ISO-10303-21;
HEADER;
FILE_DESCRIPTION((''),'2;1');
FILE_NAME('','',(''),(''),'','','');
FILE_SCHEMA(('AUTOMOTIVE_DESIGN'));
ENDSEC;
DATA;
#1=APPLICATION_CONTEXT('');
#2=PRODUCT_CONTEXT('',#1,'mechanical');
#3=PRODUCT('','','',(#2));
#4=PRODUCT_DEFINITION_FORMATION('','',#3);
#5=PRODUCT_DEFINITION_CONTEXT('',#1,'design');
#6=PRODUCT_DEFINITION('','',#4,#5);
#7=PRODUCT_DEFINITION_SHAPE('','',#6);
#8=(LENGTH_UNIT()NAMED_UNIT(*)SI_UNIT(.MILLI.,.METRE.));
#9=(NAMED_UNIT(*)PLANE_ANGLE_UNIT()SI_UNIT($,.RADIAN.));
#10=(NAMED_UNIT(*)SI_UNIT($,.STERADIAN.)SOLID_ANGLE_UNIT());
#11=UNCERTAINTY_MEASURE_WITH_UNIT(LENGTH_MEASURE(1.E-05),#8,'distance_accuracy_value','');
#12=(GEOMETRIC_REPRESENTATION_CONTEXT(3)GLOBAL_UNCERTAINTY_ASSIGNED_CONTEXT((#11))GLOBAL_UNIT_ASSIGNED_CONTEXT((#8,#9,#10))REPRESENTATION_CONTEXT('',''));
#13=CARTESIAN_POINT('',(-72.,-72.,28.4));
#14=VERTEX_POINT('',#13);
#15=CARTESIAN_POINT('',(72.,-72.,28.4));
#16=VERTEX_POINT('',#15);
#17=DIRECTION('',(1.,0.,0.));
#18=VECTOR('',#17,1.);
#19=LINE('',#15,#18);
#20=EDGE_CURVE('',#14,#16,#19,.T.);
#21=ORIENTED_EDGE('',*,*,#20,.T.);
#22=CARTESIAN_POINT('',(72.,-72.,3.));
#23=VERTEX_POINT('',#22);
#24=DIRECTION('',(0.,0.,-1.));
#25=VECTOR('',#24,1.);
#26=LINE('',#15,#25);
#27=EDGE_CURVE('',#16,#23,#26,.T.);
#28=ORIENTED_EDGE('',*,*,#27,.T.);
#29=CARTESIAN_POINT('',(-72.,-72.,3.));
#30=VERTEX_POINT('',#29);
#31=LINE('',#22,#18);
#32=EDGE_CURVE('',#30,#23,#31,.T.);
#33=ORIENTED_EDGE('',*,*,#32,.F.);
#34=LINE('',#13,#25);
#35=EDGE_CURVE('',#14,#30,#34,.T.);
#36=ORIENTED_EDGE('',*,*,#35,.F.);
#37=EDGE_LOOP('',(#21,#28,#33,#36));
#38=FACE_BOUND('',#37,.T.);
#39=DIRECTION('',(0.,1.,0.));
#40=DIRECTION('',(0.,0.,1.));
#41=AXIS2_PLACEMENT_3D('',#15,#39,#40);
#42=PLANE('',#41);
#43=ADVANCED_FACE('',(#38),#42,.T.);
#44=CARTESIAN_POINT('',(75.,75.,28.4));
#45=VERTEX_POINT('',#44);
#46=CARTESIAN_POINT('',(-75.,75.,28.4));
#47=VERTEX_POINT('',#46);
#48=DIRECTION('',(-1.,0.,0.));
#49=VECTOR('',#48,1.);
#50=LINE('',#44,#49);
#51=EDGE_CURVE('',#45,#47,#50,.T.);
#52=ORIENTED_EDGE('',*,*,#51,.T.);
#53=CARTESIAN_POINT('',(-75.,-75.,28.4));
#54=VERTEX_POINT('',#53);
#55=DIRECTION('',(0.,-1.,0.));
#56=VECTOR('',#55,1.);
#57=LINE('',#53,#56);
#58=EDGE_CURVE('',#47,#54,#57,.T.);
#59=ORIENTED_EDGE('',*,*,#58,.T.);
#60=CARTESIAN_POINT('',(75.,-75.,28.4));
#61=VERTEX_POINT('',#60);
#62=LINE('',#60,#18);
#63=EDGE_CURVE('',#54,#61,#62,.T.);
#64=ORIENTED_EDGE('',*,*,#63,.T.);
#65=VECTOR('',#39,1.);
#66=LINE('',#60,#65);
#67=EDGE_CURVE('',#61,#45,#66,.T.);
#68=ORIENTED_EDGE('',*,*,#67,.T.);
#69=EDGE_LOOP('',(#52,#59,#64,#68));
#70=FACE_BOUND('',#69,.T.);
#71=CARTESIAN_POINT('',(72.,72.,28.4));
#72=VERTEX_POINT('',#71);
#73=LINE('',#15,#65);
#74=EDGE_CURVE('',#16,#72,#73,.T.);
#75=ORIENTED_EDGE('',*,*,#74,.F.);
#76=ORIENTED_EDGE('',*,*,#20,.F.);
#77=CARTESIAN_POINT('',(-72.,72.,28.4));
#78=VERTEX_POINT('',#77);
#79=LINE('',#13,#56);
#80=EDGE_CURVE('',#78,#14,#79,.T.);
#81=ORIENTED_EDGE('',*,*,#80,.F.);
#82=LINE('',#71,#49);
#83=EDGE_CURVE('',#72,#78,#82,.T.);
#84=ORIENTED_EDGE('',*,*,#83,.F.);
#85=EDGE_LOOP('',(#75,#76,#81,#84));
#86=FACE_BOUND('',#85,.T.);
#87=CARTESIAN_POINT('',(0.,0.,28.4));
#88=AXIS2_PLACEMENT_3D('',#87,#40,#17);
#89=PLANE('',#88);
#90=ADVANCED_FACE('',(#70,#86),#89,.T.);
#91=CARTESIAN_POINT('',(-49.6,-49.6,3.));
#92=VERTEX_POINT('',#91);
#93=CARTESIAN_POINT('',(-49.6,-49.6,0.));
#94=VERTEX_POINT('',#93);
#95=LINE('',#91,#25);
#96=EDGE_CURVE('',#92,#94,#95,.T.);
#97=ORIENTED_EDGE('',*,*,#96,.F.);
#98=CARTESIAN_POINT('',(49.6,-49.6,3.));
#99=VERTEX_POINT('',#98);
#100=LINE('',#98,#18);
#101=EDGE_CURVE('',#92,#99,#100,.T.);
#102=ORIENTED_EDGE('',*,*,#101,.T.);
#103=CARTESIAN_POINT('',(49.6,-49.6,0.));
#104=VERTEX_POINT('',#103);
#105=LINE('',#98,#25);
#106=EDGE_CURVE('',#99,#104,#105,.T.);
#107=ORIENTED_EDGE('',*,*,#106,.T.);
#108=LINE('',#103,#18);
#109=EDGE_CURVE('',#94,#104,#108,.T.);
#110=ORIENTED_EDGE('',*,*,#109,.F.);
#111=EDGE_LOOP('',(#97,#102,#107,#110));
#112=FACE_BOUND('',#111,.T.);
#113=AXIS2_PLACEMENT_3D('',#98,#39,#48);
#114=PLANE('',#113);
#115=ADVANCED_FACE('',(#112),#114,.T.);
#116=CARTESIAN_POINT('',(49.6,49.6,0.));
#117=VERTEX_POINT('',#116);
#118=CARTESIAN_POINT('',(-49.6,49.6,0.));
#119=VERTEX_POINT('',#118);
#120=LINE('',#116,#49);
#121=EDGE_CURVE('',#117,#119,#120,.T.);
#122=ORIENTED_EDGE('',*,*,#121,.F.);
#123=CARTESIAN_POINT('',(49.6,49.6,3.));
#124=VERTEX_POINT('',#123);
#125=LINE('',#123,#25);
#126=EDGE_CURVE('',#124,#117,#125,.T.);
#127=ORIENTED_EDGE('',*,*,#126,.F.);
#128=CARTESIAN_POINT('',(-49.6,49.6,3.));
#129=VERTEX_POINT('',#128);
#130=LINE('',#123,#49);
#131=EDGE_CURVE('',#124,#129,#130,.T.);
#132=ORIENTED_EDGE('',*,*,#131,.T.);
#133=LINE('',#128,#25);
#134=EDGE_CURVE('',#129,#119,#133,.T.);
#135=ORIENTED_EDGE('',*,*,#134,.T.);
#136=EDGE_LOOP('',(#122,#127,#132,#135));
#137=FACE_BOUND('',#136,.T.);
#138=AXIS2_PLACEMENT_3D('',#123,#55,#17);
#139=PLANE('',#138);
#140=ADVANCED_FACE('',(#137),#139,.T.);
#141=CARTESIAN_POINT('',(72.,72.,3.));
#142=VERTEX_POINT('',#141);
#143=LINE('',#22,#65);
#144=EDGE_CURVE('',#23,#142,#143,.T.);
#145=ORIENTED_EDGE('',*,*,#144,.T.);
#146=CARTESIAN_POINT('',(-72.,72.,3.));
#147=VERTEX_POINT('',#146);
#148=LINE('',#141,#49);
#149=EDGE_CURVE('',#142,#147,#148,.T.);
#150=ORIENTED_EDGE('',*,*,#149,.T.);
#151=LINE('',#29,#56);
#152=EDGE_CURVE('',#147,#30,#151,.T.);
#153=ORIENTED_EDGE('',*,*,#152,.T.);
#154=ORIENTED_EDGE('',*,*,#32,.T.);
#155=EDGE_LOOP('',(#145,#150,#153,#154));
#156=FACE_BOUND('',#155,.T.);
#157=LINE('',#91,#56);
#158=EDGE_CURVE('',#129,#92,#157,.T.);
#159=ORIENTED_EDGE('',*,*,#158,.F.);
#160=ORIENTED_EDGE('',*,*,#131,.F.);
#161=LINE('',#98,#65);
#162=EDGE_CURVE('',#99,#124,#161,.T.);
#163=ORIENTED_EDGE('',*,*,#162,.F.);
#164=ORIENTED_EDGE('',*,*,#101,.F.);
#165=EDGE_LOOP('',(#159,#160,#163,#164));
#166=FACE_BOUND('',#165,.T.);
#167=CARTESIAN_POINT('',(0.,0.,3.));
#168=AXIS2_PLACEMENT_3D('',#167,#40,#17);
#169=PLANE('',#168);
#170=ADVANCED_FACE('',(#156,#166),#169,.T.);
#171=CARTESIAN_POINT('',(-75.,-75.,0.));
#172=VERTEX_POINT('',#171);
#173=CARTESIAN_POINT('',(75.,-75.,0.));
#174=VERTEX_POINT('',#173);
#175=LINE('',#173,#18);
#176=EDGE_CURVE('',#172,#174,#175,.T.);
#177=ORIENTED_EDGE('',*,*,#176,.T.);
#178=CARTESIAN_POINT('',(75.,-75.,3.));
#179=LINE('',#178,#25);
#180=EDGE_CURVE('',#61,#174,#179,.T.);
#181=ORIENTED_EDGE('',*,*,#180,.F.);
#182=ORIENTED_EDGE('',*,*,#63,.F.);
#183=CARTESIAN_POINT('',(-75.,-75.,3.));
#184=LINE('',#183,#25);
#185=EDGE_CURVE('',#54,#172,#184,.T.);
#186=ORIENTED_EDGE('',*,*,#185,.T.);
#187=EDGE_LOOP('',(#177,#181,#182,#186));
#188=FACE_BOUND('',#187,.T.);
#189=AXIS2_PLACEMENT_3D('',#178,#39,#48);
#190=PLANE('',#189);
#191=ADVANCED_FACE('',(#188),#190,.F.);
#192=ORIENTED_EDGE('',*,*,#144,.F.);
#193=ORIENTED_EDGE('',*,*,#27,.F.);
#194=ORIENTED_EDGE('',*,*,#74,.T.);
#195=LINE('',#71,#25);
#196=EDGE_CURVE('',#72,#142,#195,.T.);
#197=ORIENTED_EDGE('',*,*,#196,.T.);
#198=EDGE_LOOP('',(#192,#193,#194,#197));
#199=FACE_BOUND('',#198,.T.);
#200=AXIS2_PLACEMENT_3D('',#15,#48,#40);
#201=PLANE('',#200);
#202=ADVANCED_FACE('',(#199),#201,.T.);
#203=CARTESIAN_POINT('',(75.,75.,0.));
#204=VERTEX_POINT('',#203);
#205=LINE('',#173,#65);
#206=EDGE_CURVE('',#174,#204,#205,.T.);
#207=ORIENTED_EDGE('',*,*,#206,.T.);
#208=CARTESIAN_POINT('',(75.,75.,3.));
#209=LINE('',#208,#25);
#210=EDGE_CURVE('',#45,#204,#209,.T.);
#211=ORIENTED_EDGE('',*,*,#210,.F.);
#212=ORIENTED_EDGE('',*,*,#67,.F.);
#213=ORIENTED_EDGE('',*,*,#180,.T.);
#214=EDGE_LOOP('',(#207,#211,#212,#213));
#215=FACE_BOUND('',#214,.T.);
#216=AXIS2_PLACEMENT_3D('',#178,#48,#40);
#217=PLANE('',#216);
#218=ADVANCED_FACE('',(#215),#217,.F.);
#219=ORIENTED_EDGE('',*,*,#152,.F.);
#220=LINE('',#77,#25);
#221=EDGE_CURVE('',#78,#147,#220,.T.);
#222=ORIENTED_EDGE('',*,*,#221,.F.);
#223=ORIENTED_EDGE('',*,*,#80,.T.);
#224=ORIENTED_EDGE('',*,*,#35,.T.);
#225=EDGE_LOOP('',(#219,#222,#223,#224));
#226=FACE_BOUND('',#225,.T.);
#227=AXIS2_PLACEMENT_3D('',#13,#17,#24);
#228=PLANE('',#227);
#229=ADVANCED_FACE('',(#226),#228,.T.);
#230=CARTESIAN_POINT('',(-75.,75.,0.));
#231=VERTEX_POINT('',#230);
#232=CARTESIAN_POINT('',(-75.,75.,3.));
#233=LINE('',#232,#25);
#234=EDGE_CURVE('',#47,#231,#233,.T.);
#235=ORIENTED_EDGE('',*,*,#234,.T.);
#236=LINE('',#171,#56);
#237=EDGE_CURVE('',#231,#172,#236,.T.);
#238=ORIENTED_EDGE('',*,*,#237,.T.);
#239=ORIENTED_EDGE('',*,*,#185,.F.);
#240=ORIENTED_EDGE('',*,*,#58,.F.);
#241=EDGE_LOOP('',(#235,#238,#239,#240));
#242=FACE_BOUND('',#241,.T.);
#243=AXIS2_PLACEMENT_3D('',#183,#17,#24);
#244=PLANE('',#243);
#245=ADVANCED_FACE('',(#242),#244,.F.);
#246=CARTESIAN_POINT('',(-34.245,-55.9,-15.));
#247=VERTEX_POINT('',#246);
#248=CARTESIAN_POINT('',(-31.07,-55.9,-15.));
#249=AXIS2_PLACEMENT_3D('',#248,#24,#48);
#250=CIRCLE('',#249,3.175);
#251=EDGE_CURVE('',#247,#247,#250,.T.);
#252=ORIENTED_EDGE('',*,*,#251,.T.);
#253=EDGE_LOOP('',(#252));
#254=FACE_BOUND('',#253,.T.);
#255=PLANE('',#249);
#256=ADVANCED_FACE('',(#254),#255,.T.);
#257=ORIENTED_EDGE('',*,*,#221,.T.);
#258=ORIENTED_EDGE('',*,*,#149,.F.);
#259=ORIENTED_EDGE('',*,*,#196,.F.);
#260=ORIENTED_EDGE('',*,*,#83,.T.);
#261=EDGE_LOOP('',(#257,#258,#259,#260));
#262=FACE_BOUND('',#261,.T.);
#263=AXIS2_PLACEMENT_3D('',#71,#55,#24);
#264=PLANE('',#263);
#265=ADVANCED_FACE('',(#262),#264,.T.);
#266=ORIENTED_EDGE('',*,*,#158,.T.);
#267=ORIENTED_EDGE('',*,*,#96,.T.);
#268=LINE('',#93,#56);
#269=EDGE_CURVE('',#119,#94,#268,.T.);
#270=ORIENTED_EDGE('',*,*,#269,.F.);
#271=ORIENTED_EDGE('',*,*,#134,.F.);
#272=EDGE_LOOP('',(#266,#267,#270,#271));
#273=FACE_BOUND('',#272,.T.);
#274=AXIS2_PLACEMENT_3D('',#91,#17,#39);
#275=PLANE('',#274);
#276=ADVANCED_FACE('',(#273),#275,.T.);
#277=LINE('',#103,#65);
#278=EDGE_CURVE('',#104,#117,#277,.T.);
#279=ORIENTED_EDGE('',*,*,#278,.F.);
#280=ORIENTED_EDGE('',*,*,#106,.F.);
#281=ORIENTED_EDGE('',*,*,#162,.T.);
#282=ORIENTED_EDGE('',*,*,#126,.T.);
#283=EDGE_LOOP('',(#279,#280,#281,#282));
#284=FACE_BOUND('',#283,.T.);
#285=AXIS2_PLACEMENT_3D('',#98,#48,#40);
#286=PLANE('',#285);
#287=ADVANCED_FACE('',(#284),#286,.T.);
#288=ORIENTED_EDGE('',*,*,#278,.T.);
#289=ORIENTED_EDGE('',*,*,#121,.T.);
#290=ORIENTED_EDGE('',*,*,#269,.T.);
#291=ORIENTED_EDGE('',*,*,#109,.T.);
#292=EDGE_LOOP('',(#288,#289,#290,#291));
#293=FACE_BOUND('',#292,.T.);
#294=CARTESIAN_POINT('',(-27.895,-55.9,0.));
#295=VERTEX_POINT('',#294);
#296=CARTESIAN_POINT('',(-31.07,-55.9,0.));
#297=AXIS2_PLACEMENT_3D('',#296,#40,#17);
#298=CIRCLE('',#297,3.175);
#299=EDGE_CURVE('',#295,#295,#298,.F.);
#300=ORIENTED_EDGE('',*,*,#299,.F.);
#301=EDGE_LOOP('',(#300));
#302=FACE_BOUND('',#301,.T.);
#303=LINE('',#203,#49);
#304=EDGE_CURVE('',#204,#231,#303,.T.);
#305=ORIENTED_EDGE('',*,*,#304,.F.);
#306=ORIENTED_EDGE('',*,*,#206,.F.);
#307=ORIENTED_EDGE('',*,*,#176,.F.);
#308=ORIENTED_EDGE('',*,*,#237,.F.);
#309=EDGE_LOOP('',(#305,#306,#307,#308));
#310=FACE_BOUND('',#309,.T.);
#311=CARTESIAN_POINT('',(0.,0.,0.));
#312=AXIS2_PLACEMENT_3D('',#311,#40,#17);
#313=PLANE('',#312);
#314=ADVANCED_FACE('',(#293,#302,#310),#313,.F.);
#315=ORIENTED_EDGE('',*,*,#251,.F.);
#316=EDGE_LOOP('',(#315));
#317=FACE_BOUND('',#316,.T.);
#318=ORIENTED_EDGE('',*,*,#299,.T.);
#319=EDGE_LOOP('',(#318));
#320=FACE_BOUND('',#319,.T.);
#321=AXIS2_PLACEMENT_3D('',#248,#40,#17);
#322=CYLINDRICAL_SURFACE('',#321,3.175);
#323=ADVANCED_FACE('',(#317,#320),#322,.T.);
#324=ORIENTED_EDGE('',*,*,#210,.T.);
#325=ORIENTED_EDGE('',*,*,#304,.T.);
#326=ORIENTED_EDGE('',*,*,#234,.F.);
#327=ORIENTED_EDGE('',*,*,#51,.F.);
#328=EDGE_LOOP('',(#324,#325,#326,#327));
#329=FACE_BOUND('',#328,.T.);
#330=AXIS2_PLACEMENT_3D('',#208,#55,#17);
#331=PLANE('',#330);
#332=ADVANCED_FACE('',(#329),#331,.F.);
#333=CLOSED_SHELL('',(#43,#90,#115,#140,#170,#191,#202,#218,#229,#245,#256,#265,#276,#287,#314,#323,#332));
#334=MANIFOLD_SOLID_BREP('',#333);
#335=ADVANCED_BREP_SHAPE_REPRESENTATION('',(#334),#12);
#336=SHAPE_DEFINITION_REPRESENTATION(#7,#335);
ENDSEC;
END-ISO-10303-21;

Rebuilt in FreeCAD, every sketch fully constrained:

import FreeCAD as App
import Part
import Sketcher
Q = App.Units.Quantity


def add_polygon(sketch, points):
    """Adds a closed chain of lines whose ends are joined by coincident constraints."""
    first, n = sketch.GeometryCount, len(points)
    for a, b in zip(points, points[1:] + points[:1]):
        sketch.addGeometry(Part.LineSegment(App.Vector(*a, 0), App.Vector(*b, 0)), False)
    for i in range(n):
        sketch.addConstraint(Sketcher.Constraint("Coincident", first + i, 2, first + (i + 1) % n, 1))

doc = App.newDocument("Part")
body = doc.addObject("PartDesign::Body", "Body")

# Sketch on XY plane
sketch1 = doc.addObject("Sketcher::SketchObject", "Sketch")
body.addObject(sketch1)
sketch1.AttachmentSupport = (doc.XY_Plane, [""])
sketch1.MapMode = "FlatFace"
add_polygon(sketch1, [(-75, 75), (-75, -75), (75, -75), (75, 75)])  # lines 0-3
add_polygon(sketch1, [(49.6, -49.6), (-49.6, -49.6), (-49.6, 49.6), (49.6, 49.6)])  # lines 4-7
sketch1.addConstraint(Sketcher.Constraint("Vertical", 0))
sketch1.addConstraint(Sketcher.Constraint("Horizontal", 1))
sketch1.addConstraint(Sketcher.Constraint("Vertical", 2))
sketch1.addConstraint(Sketcher.Constraint("Horizontal", 3))
sketch1.addConstraint(Sketcher.Constraint("Horizontal", 4))
sketch1.addConstraint(Sketcher.Constraint("Vertical", 5))
sketch1.addConstraint(Sketcher.Constraint("Horizontal", 6))
sketch1.addConstraint(Sketcher.Constraint("Vertical", 7))
sketch1.addConstraint(Sketcher.Constraint("Symmetric", 0, 2, 2, 2, -1, 1))
sketch1.addConstraint(Sketcher.Constraint("Symmetric", 4, 2, 6, 2, -1, 1))
sketch1.addConstraint(Sketcher.Constraint("Equal", 3, 0))
sketch1.addConstraint(Sketcher.Constraint("Equal", 6, 5))
sketch1.addConstraint(Sketcher.Constraint("DistanceX", 1, 1, 1, 2, Q("150 mm")))
sketch1.addConstraint(Sketcher.Constraint("DistanceX", 4, 2, 4, 1, Q("99.2 mm")))
pad1 = doc.addObject("PartDesign::Pad", "Pad")
body.addObject(pad1)
pad1.Profile = sketch1
pad1.Length = 3

# Sketch on XY plane
sketch2 = doc.addObject("Sketcher::SketchObject", "Sketch001")
body.addObject(sketch2)
sketch2.AttachmentSupport = (doc.XY_Plane, [""])
sketch2.MapMode = "FlatFace"
sketch2.AttachmentOffset = App.Placement(App.Vector(0, 0, 3), App.Rotation())
add_polygon(sketch2, [(-75, 75), (-75, -75), (75, -75), (75, 75)])  # lines 0-3
add_polygon(sketch2, [(72, -72), (-72, -72), (-72, 72), (72, 72)])  # lines 4-7
sketch2.addConstraint(Sketcher.Constraint("Vertical", 0))
sketch2.addConstraint(Sketcher.Constraint("Horizontal", 1))
sketch2.addConstraint(Sketcher.Constraint("Vertical", 2))
sketch2.addConstraint(Sketcher.Constraint("Horizontal", 3))
sketch2.addConstraint(Sketcher.Constraint("Horizontal", 4))
sketch2.addConstraint(Sketcher.Constraint("Vertical", 5))
sketch2.addConstraint(Sketcher.Constraint("Horizontal", 6))
sketch2.addConstraint(Sketcher.Constraint("Vertical", 7))
sketch2.addConstraint(Sketcher.Constraint("Symmetric", 0, 2, 2, 2, -1, 1))
sketch2.addConstraint(Sketcher.Constraint("Symmetric", 4, 2, 6, 2, -1, 1))
sketch2.addConstraint(Sketcher.Constraint("Equal", 3, 0))
sketch2.addConstraint(Sketcher.Constraint("Equal", 6, 5))
sketch2.addConstraint(Sketcher.Constraint("DistanceX", 1, 1, 1, 2, Q("150 mm")))
sketch2.addConstraint(Sketcher.Constraint("DistanceX", 4, 2, 4, 1, Q("144 mm")))
pad2 = doc.addObject("PartDesign::Pad", "Pad001")
body.addObject(pad2)
pad2.Profile = sketch2
pad2.Length = 25.4

# Sketch on XY plane
sketch3 = doc.addObject("Sketcher::SketchObject", "Sketch002")
body.addObject(sketch3)
sketch3.AttachmentSupport = (doc.XY_Plane, [""])
sketch3.MapMode = "FlatFace"
sketch3.addGeometry(Part.Circle(App.Vector(-31.07, -55.9, 0), App.Vector(0, 0, 1), 3.175), False)
sketch3.addConstraint(Sketcher.Constraint("Diameter", 0, Q("6.35 mm")))
sketch3.addConstraint(Sketcher.Constraint("DistanceY", 0, 3, -1, 1, Q("55.9 mm")))
sketch3.addConstraint(Sketcher.Constraint("DistanceX", 0, 3, -1, 1, Q("31.07 mm")))
pad3 = doc.addObject("PartDesign::Pad", "Pad002")
body.addObject(pad3)
pad3.Profile = sketch3
pad3.Length = 15
pad3.Reversed = True

doc.recompute()
